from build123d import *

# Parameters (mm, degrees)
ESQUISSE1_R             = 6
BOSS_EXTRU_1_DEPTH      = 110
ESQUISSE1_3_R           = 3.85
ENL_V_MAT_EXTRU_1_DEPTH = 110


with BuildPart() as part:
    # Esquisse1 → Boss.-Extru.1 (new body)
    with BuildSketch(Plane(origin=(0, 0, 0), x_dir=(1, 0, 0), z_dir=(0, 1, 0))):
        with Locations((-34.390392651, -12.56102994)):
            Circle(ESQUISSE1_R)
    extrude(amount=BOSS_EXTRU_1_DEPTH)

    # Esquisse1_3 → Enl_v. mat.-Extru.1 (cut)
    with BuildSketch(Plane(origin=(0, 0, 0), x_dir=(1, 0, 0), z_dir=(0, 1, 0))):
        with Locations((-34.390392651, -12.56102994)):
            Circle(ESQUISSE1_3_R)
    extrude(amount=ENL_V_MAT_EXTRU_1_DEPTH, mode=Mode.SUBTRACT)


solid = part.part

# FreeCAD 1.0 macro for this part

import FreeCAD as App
import Part
import Sketcher
from FreeCAD import Vector
Q = App.Units.Quantity

doc = App.newDocument("Part")
params = doc.addObject("Spreadsheet::Sheet", "Params")
for row, (alias, value) in enumerate([
    ("sketch1_diameter", "12 mm"),
    ("pad1_length", "110 mm"),
    ("sketch2_diameter", "7.7 mm"),
    ("pocket1_length", "110 mm"),
], start=1):
    params.set(f"A{row}", alias)
    params.set(f"B{row}", "=" + value)
    params.setAlias(f"B{row}", alias)

body = doc.addObject("PartDesign::Body", "Body")

# Sketch on XZ plane
sketch1 = body.newObject("Sketcher::SketchObject", "Sketch")
sketch1.AttachmentSupport = (doc.getObject("XZ_Plane"), [""])
sketch1.MapMode = "FlatFace"
sketch1.addGeometry(Part.Circle(Vector(-34, 13, 0), Vector(0, 0, 1), 6), False)
sketch1.addConstraint([
    Sketcher.Constraint("Diameter", 0, Q("12 mm")),
    Sketcher.Constraint("DistanceY", -1, 1, 0, 3, Q("12.56103 mm")),
    Sketcher.Constraint("DistanceX", 0, 3, -1, 1, Q("34.390393 mm")),
])
sketch1.setExpression("Constraints[0]", "Params.sketch1_diameter")
pad1 = body.newObject("PartDesign::Pad", "Pad")
pad1.Profile = sketch1
pad1.setExpression("Length", "Params.pad1_length")
pad1.Reversed = True

# Sketch on XZ plane
sketch2 = body.newObject("Sketcher::SketchObject", "Sketch001")
sketch2.AttachmentSupport = (doc.getObject("XZ_Plane"), [""])
sketch2.MapMode = "FlatFace"
sketch2.addGeometry(Part.Circle(Vector(-34.4, 12.6, 0), Vector(0, 0, 1), 3.9), False)
sketch2.addConstraint([
    Sketcher.Constraint("Diameter", 0, Q("7.7 mm")),
    Sketcher.Constraint("DistanceY", -1, 1, 0, 3, Q("12.56103 mm")),
    Sketcher.Constraint("DistanceX", 0, 3, -1, 1, Q("34.390393 mm")),
])
sketch2.setExpression("Constraints[0]", "Params.sketch2_diameter")
pocket1 = body.newObject("PartDesign::Pocket", "Pocket")
pocket1.Profile = sketch2
pocket1.setExpression("Length", "Params.pocket1_length")

doc.recompute()
